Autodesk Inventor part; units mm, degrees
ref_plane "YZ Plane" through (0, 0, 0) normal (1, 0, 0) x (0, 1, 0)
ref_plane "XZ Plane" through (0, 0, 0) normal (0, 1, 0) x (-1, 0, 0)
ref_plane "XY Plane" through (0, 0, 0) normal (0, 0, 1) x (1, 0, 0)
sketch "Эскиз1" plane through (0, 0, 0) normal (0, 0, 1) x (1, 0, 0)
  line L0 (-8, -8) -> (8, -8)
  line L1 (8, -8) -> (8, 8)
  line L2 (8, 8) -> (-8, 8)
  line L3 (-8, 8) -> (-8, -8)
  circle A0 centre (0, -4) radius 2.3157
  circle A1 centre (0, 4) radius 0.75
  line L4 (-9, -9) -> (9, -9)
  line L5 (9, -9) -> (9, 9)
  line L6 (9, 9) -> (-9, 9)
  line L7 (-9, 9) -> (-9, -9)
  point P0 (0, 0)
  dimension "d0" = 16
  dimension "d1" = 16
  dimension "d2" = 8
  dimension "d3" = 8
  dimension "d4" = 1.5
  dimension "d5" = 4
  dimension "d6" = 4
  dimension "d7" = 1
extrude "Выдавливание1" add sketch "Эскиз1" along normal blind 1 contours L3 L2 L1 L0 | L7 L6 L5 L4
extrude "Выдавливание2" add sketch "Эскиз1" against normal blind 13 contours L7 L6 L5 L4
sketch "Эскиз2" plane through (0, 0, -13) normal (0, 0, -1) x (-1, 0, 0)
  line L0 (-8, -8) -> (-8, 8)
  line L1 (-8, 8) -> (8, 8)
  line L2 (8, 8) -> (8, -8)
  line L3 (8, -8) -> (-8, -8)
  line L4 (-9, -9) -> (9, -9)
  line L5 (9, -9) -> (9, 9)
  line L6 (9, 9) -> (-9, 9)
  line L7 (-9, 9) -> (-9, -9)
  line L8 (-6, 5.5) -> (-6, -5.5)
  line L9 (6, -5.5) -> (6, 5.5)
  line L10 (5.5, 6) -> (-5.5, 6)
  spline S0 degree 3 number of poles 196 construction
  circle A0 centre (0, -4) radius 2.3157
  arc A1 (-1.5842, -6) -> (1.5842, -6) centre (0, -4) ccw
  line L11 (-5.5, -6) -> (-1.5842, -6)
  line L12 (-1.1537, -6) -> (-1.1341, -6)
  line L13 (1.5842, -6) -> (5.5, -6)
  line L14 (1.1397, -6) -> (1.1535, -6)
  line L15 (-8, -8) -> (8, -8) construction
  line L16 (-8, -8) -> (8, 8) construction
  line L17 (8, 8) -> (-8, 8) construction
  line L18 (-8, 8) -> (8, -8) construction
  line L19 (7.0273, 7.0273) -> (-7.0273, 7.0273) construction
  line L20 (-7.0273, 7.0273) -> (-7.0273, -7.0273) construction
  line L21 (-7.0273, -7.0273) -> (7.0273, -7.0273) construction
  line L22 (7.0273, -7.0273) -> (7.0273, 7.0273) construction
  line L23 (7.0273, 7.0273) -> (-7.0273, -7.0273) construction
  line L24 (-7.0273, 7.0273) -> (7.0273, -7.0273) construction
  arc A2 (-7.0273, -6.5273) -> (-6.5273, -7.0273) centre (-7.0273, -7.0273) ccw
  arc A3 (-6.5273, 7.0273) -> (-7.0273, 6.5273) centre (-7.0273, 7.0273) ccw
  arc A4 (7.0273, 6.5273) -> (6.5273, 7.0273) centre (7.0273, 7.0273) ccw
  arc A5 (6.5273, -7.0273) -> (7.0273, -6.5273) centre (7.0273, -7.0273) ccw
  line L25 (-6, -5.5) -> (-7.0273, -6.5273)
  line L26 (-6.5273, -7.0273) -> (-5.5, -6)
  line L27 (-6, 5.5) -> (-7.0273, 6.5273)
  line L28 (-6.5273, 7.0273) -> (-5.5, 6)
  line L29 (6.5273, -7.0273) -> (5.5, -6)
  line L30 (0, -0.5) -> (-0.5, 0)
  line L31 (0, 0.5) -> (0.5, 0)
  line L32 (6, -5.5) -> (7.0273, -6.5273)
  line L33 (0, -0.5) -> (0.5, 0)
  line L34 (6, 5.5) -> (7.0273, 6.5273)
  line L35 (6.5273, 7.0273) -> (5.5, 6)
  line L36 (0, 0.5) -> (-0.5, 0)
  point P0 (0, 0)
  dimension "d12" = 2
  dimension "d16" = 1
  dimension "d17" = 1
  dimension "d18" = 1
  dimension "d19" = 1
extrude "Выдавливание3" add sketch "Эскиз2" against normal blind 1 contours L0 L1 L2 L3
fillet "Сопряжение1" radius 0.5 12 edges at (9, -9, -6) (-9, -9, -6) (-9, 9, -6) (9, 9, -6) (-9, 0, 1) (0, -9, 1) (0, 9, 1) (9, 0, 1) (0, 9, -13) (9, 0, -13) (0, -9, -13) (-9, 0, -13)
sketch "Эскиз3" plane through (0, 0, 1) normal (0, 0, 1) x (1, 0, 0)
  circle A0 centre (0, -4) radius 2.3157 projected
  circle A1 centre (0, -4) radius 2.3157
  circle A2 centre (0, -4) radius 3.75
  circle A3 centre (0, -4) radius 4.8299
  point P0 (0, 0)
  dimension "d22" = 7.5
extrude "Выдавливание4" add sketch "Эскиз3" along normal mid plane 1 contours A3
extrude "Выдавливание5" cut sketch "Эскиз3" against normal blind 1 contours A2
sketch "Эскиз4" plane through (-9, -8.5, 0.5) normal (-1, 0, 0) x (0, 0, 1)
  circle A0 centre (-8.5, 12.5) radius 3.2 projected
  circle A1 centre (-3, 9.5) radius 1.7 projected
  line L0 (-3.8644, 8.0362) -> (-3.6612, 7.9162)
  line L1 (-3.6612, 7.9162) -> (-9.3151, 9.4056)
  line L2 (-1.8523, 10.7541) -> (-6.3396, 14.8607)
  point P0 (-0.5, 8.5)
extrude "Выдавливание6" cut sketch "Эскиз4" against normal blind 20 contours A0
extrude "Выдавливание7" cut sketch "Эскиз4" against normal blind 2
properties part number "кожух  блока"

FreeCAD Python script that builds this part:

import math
import FreeCAD as App
import Part
import Sketcher
from FreeCAD import Vector
Q = App.Units.Quantity


def edges_at(feature, points):
    """Names of the edges that pass closest to the given points."""
    edges = feature.Shape.Edges
    near = lambda p: min(range(len(edges)), key=lambda i: edges[i].distToShape(Part.Vertex(*p))[0])
    return sorted({f"Edge{near(p) + 1}" for p in points})

doc = App.newDocument("Part")
params = doc.addObject("Spreadsheet::Sheet", "Params")
for row, (alias, value) in enumerate([
    ("sketch1_diameter", "1.5 mm"),
    ("sketch1_width", "18 mm"),
    ("pad1_length", "1 mm"),
    ("sketch2_width", "16 mm"),
    ("pad2_length", "13 mm"),
    ("sketch3_radius", "0.5 mm"),
    ("sketch3_width", "16 mm"),
    ("pad3_length", "1 mm"),
    ("fillet_radius", "0.5 mm"),
    ("sketch4_diameter", "7.5 mm"),
    ("pad4_length", "1 mm"),
    ("sketch5_diameter", "7.5 mm"),
    ("pocket1_length", "1 mm"),
    ("sketch6_diameter", "6.4 mm"),
    ("pocket2_length", "20 mm"),
    ("sketch7_radius", "3.2 mm"),
    ("sketch7_radius2", "1.7 mm"),
    ("pocket3_length", "2 mm"),
], start=1):
    params.set(f"A{row}", alias)
    params.set(f"B{row}", "=" + value)
    params.setAlias(f"B{row}", alias)

body = doc.addObject("PartDesign::Body", "Body")

# Sketch on XY plane
sketch1 = doc.addObject("Sketcher::SketchObject", "Sketch")
body.addObject(sketch1)
sketch1.AttachmentSupport = (doc.XY_Plane, [""])
sketch1.MapMode = "FlatFace"
sketch1.addGeometry([
    Part.LineSegment(Vector(-9, 9, 0), Vector(-9, -9, 0)),  # 0
    Part.LineSegment(Vector(-9, -9, 0), Vector(9, -9, 0)),  # 1
    Part.LineSegment(Vector(9, -9, 0), Vector(9, 9, 0)),  # 2
    Part.LineSegment(Vector(9, 9, 0), Vector(-9, 9, 0)),  # 3
    Part.Circle(Vector(0, -4, 0), Vector(0, 0, 1), 2.3),  # 4
    Part.Circle(Vector(0, 4, 0), Vector(0, 0, 1), 0.8),  # 5
], False)
sketch1.addConstraint([
    Sketcher.Constraint("Coincident", 0, 2, 1, 1),
    Sketcher.Constraint("Coincident", 1, 2, 2, 1),
    Sketcher.Constraint("Coincident", 2, 2, 3, 1),
    Sketcher.Constraint("Coincident", 3, 2, 0, 1),
    Sketcher.Constraint("Vertical", 0),
    Sketcher.Constraint("Horizontal", 1),
    Sketcher.Constraint("Vertical", 2),
    Sketcher.Constraint("Horizontal", 3),
    Sketcher.Constraint("Symmetric", 4, 3, 5, 3, -1, 1),
    Sketcher.Constraint("Symmetric", 0, 2, 2, 2, -1, 1),
    Sketcher.Constraint("PointOnObject", 4, 3, -2),
    Sketcher.Constraint("Equal", 3, 0),
    Sketcher.Constraint("Diameter", 5, Q("1.5 mm")),
    Sketcher.Constraint("DistanceY", 4, 3, -1, 1, Q("4 mm")),
    Sketcher.Constraint("DistanceX", 1, 1, 1, 2, Q("18 mm")),
    Sketcher.Constraint("Diameter", 4, Q("4.6314 mm")),
])
sketch1.setExpression("Constraints[12]", "Params.sketch1_diameter")
sketch1.setExpression("Constraints[14]", "Params.sketch1_width")
pad1 = doc.addObject("PartDesign::Pad", "Pad")
body.addObject(pad1)
pad1.Profile = sketch1
pad1.setExpression("Length", "Params.pad1_length")

# Sketch on XY plane
sketch2 = doc.addObject("Sketcher::SketchObject", "Sketch001")
body.addObject(sketch2)
sketch2.AttachmentSupport = (doc.XY_Plane, [""])
sketch2.MapMode = "FlatFace"
sketch2.addGeometry([
    Part.LineSegment(Vector(-9, 9, 0), Vector(-9, -9, 0)),  # 0
    Part.LineSegment(Vector(-9, -9, 0), Vector(9, -9, 0)),  # 1
    Part.LineSegment(Vector(9, -9, 0), Vector(9, 9, 0)),  # 2
    Part.LineSegment(Vector(9, 9, 0), Vector(-9, 9, 0)),  # 3
    Part.LineSegment(Vector(8, -8, 0), Vector(-8, -8, 0)),  # 4
    Part.LineSegment(Vector(-8, -8, 0), Vector(-8, 8, 0)),  # 5
    Part.LineSegment(Vector(-8, 8, 0), Vector(8, 8, 0)),  # 6
    Part.LineSegment(Vector(8, 8, 0), Vector(8, -8, 0)),  # 7
], False)
sketch2.addConstraint([
    Sketcher.Constraint("Coincident", 0, 2, 1, 1),
    Sketcher.Constraint("Coincident", 1, 2, 2, 1),
    Sketcher.Constraint("Coincident", 2, 2, 3, 1),
    Sketcher.Constraint("Coincident", 3, 2, 0, 1),
    Sketcher.Constraint("Coincident", 4, 2, 5, 1),
    Sketcher.Constraint("Coincident", 5, 2, 6, 1),
    Sketcher.Constraint("Coincident", 6, 2, 7, 1),
    Sketcher.Constraint("Coincident", 7, 2, 4, 1),
    Sketcher.Constraint("Vertical", 0),
    Sketcher.Constraint("Horizontal", 1),
    Sketcher.Constraint("Vertical", 2),
    Sketcher.Constraint("Horizontal", 3),
    Sketcher.Constraint("Horizontal", 4),
    Sketcher.Constraint("Vertical", 5),
    Sketcher.Constraint("Horizontal", 6),
    Sketcher.Constraint("Vertical", 7),
    Sketcher.Constraint("Symmetric", 0, 2, 2, 2, -1, 1),
    Sketcher.Constraint("Symmetric", 4, 2, 6, 2, -1, 1),
    Sketcher.Constraint("Equal", 3, 0),
    Sketcher.Constraint("Equal", 6, 5),
    Sketcher.Constraint("DistanceX", 4, 2, 4, 1, Q("16 mm")),
    Sketcher.Constraint("DistanceX", 0, 2, 4, 2, Q("1 mm")),
])
sketch2.setExpression("Constraints[20]", "Params.sketch2_width")
pad2 = doc.addObject("PartDesign::Pad", "Pad001")
body.addObject(pad2)
pad2.Profile = sketch2
pad2.setExpression("Length", "Params.pad2_length")
pad2.Reversed = True

# Sketch on XY plane
sketch3 = doc.addObject("Sketcher::SketchObject", "Sketch002")
body.addObject(sketch3)
sketch3.AttachmentSupport = (doc.XY_Plane, [""])
sketch3.MapMode = "FlatFace"
sketch3.AttachmentOffset = App.Placement(Vector(0, 0, -13), App.Rotation())
sketch3.addGeometry([
    Part.LineSegment(Vector(8, 8, 0), Vector(8, -8, 0)),  # 0
    Part.LineSegment(Vector(8, -8, 0), Vector(-8, -8, 0)),  # 1
    Part.LineSegment(Vector(-8, -8, 0), Vector(-8, 8, 0)),  # 2
    Part.LineSegment(Vector(-8, 8, 0), Vector(8, 8, 0)),  # 3
    Part.LineSegment(Vector(6, -5.5, 0), Vector(6, 5.5, 0)),  # 4
    Part.LineSegment(Vector(6, 5.5, 0), Vector(7, 6.5, 0)),  # 5
    Part.ArcOfCircle(Part.Circle(Vector(7, 7, 0), Vector(0, 0, 1), 0.5), math.radians(-90), math.radians(180)),  # 6
    Part.LineSegment(Vector(6.5, 7, 0), Vector(5.5, 6, 0)),  # 7
    Part.LineSegment(Vector(5.5, 6, 0), Vector(-5.5, 6, 0)),  # 8
    Part.LineSegment(Vector(-5.5, 6, 0), Vector(-6.5, 7, 0)),  # 9
    Part.ArcOfCircle(Part.Circle(Vector(-7, 7, 0), Vector(0, 0, 1), 0.5), math.radians(0), math.radians(270)),  # 10
    Part.LineSegment(Vector(-7, 6.5, 0), Vector(-6, 5.5, 0)),  # 11
    Part.LineSegment(Vector(-6, 5.5, 0), Vector(-6, -5.5, 0)),  # 12
    Part.LineSegment(Vector(-6, -5.5, 0), Vector(-7, -6.5, 0)),  # 13
    Part.ArcOfCircle(Part.Circle(Vector(-7, -7, 0), Vector(0, 0, 1), 0.5), math.radians(90), math.radians(360)),  # 14
    Part.LineSegment(Vector(-6.5, -7, 0), Vector(-5.5, -6, 0)),  # 15
    Part.LineSegment(Vector(-5.5, -6, 0), Vector(-1.6, -6, 0)),  # 16
    Part.ArcOfCircle(Part.Circle(Vector(0, -4, 0), Vector(0, 0, 1), 2.6), math.radians(-128), math.radians(-52)),  # 17
    Part.LineSegment(Vector(1.6, -6, 0), Vector(5.5, -6, 0)),  # 18
    Part.LineSegment(Vector(5.5, -6, 0), Vector(6.5, -7, 0)),  # 19
    Part.ArcOfCircle(Part.Circle(Vector(7, -7, 0), Vector(0, 0, 1), 0.5), math.radians(180), math.radians(450)),  # 20
    Part.LineSegment(Vector(7, -6.5, 0), Vector(6, -5.5, 0)),  # 21
], False)
sketch3.addConstraint([
    Sketcher.Constraint("Coincident", 0, 2, 1, 1),
    Sketcher.Constraint("Coincident", 1, 2, 2, 1),
    Sketcher.Constraint("Coincident", 2, 2, 3, 1),
    Sketcher.Constraint("Coincident", 3, 2, 0, 1),
    Sketcher.Constraint("Coincident", 4, 2, 5, 1),
    Sketcher.Constraint("Coincident", 5, 2, 6, 1),
    Sketcher.Constraint("Coincident", 6, 2, 7, 1),
    Sketcher.Constraint("Coincident", 7, 2, 8, 1),
    Sketcher.Constraint("Coincident", 8, 2, 9, 1),
    Sketcher.Constraint("Coincident", 9, 2, 10, 1),
    Sketcher.Constraint("Coincident", 10, 2, 11, 1),
    Sketcher.Constraint("Coincident", 11, 2, 12, 1),
    Sketcher.Constraint("Coincident", 12, 2, 13, 1),
    Sketcher.Constraint("Coincident", 13, 2, 14, 1),
    Sketcher.Constraint("Coincident", 14, 2, 15, 1),
    Sketcher.Constraint("Coincident", 15, 2, 16, 1),
    Sketcher.Constraint("Coincident", 16, 2, 17, 1),
    Sketcher.Constraint("Coincident", 17, 2, 18, 1),
    Sketcher.Constraint("Coincident", 18, 2, 19, 1),
    Sketcher.Constraint("Coincident", 19, 2, 20, 1),
    Sketcher.Constraint("Coincident", 20, 2, 21, 1),
    Sketcher.Constraint("Coincident", 21, 2, 4, 1),
    Sketcher.Constraint("Vertical", 0),
    Sketcher.Constraint("Horizontal", 1),
    Sketcher.Constraint("Vertical", 2),
    Sketcher.Constraint("Horizontal", 3),
    Sketcher.Constraint("Vertical", 4),
    Sketcher.Constraint("Horizontal", 8),
    Sketcher.Constraint("Vertical", 12),
    Sketcher.Constraint("Horizontal", 16),
    Sketcher.Constraint("Horizontal", 18),
    Sketcher.Constraint("Equal", 6, 10),
    Sketcher.Constraint("Equal", 10, 14),
    Sketcher.Constraint("Equal", 14, 20),
    Sketcher.Constraint("Symmetric", 6, 3, 14, 3, -1, 1),
    Sketcher.Constraint("Symmetric", 10, 3, 20, 3, -1, 1),
    Sketcher.Constraint("Symmetric", 0, 2, 2, 2, -1, 1),
    Sketcher.Constraint("Symmetric", 4, 2, 12, 2, -1, 1),
    Sketcher.Constraint("Symmetric", 7, 2, 15, 2, -1, 1),
    Sketcher.Constraint("Symmetric", 8, 2, 18, 2, -1, 1),
    Sketcher.Constraint("Symmetric", 6, 3, 10, 3, -2),
    Sketcher.Constraint("PointOnObject", 17, 3, -2),
    Sketcher.Constraint("Parallel", 5, 7),
    Sketcher.Constraint("Perpendicular", 7, 9),
    Sketcher.Constraint("Parallel", 9, 11),
    Sketcher.Constraint("Perpendicular", 11, 13),
    Sketcher.Constraint("Parallel", 13, 15),
    Sketcher.Constraint("Perpendicular", 15, 19),
    Sketcher.Constraint("Parallel", 19, 21),
    Sketcher.Constraint("Horizontal", 10, 3, 6, 2),
    Sketcher.Constraint("Horizontal", 6, 2, 9, 2),
    Sketcher.Constraint("Horizontal", 4, 2, 11, 2),
    Sketcher.Constraint("Horizontal", 12, 2, 21, 2),
    Sketcher.Constraint("Vertical", 20, 3, 5, 2),
    Sketcher.Constraint("Vertical", 14, 3, 10, 2),
    Sketcher.Constraint("Equal", 3, 0),
    Sketcher.Constraint("Equal", 8, 4),
    Sketcher.Constraint("Equal", 5, 7),
    Sketcher.Constraint("Radius", 6, Q("0.5 mm")),
    Sketcher.Constraint("DistanceX", 4, 2, 3, 2, Q("2 mm")),
    Sketcher.Constraint("DistanceY", 16, 2, 17, 3, Q("2 mm")),
    Sketcher.Constraint("DistanceX", 1, 2, 1, 1, Q("16 mm")),
    Sketcher.Constraint("Radius", 17, Q("2.5514 mm")),
    Sketcher.Constraint("DistanceX", 14, 2, 16, 2, Q("4.943 mm")),
])
sketch3.setExpression("Constraints[58]", "Params.sketch3_radius")
sketch3.setExpression("Constraints[61]", "Params.sketch3_width")
pad3 = doc.addObject("PartDesign::Pad", "Pad002")
body.addObject(pad3)
pad3.Profile = sketch3
pad3.setExpression("Length", "Params.pad3_length")
doc.recompute()

fillet = doc.addObject("PartDesign::Fillet", "Fillet")
body.addObject(fillet)
fillet.Base = (pad3, edges_at(pad3, [
    (9, -9, -6),
    (-9, -9, -6),
    (-9, 9, -6),
    (9, 9, -6),
    (-9, 0, 1),
    (0, -9, 1),
    (0, 9, 1),
    (9, 0, 1),
    (0, 9, -13),
    (9, 0, -13),
    (0, -9, -13),
    (-9, 0, -13),
]))
fillet.setExpression("Radius", "Params.fillet_radius")

# Sketch on XY plane
sketch4 = doc.addObject("Sketcher::SketchObject", "Sketch003")
body.addObject(sketch4)
sketch4.AttachmentSupport = (doc.XY_Plane, [""])
sketch4.MapMode = "FlatFace"
sketch4.AttachmentOffset = App.Placement(Vector(0, 0, 1), App.Rotation())
sketch4.addGeometry([
    Part.Circle(Vector(0, -4, 0), Vector(0, 0, 1), 4.8),
    Part.Circle(Vector(0, -4, 0), Vector(0, 0, 1), 3.8),
], False)
sketch4.addConstraint([
    Sketcher.Constraint("Coincident", 1, 3, 0, 3),
    Sketcher.Constraint("PointOnObject", 0, 3, -2),
    Sketcher.Constraint("Diameter", 1, Q("7.5 mm")),
    Sketcher.Constraint("DistanceY", 0, 3, -1, 1, Q("4 mm")),
    Sketcher.Constraint("Diameter", 0, Q("9.6598 mm")),
])
sketch4.setExpression("Constraints[2]", "Params.sketch4_diameter")
pad4 = doc.addObject("PartDesign::Pad", "Pad003")
body.addObject(pad4)
pad4.Profile = sketch4
pad4.setExpression("Length", "Params.pad4_length")
pad4.Midplane = True

# Sketch on XY plane
sketch5 = doc.addObject("Sketcher::SketchObject", "Sketch004")
body.addObject(sketch5)
sketch5.AttachmentSupport = (doc.XY_Plane, [""])
sketch5.MapMode = "FlatFace"
sketch5.AttachmentOffset = App.Placement(Vector(0, 0, 1), App.Rotation())
sketch5.addGeometry([
    Part.Circle(Vector(0, -4, 0), Vector(0, 0, 1), 3.8),
    Part.Circle(Vector(0, -4, 0), Vector(0, 0, 1), 2.3),
], False)
sketch5.addConstraint([
    Sketcher.Constraint("Coincident", 1, 3, 0, 3),
    Sketcher.Constraint("PointOnObject", 0, 3, -2),
    Sketcher.Constraint("Diameter", 0, Q("7.5 mm")),
    Sketcher.Constraint("DistanceY", 0, 3, -1, 1, Q("4 mm")),
    Sketcher.Constraint("Diameter", 1, Q("4.6314 mm")),
])
sketch5.setExpression("Constraints[2]", "Params.sketch5_diameter")
pocket1 = doc.addObject("PartDesign::Pocket", "Pocket")
body.addObject(pocket1)
pocket1.Profile = sketch5
pocket1.setExpression("Length", "Params.pocket1_length")

# Sketch on YZ plane
sketch6 = doc.addObject("Sketcher::SketchObject", "Sketch005")
body.addObject(sketch6)
sketch6.AttachmentSupport = (doc.YZ_Plane, [""])
sketch6.MapMode = "FlatFace"
sketch6.AttachmentOffset = App.Placement(Vector(0, 0, -9), App.Rotation())
sketch6.addGeometry(Part.Circle(Vector(4, -8, 0), Vector(0, 0, 1), 3.2), False)
sketch6.addConstraint([
    Sketcher.Constraint("Diameter", 0, Q("6.4 mm")),
    Sketcher.Constraint("DistanceX", -1, 1, 0, 3, Q("4 mm")),
    Sketcher.Constraint("DistanceY", 0, 3, -1, 1, Q("8 mm")),
])
sketch6.setExpression("Constraints[0]", "Params.sketch6_diameter")
pocket2 = doc.addObject("PartDesign::Pocket", "Pocket001")
body.addObject(pocket2)
pocket2.Profile = sketch6
pocket2.setExpression("Length", "Params.pocket2_length")
pocket2.Reversed = True

# Sketch on YZ plane
sketch7 = doc.addObject("Sketcher::SketchObject", "Sketch006")
body.addObject(sketch7)
sketch7.AttachmentSupport = (doc.YZ_Plane, [""])
sketch7.MapMode = "FlatFace"
sketch7.AttachmentOffset = App.Placement(Vector(0, 0, -9), App.Rotation())
sketch7.addGeometry([
    Part.ArcOfCircle(Part.Circle(Vector(4, -8, 0), Vector(0, 0, 1), 3.2), math.radians(-165), math.radians(42)),  # 0
    Part.LineSegment(Vector(0.91, -8.82, 0), Vector(-0.58, -3.16, 0)),  # 1
    Part.LineSegment(Vector(-0.58, -3.16, 0), Vector(-0.46, -3.36, 0)),  # 2
    Part.ArcOfCircle(Part.Circle(Vector(1, -2.5, 0), Vector(0, 0, 1), 1.7), math.radians(42), math.radians(211)),  # 3
    Part.LineSegment(Vector(2.25, -1.35, 0), Vector(6.36, -5.84, 0)),  # 4
], False)
sketch7.addConstraint([
    Sketcher.Constraint("Tangent", 0, 1, 1, 1),
    Sketcher.Constraint("Coincident", 1, 2, 2, 1),
    Sketcher.Constraint("Tangent", 2, 2, 3, 2),
    Sketcher.Constraint("Tangent", 3, 1, 4, 1),
    Sketcher.Constraint("Tangent", 4, 2, 0, 2),
    Sketcher.Constraint("Radius", 0, Q("3.2 mm")),
    Sketcher.Constraint("Radius", 3, Q("1.7 mm")),
    Sketcher.Constraint("DistanceX", -1, 1, 0, 3, Q("4 mm")),
    Sketcher.Constraint("DistanceY", 0, 3, -1, 1, Q("8 mm")),
    Sketcher.Constraint("DistanceX", -1, 1, 3, 3, Q("1 mm")),
    Sketcher.Constraint("DistanceY", 3, 3, -1, 1, Q("2.5 mm")),
    Sketcher.Constraint("DistanceX", 1, 2, 2, 2, Q("0.12 mm")),
    Sketcher.Constraint("Distance", 2, Q("0.236 mm")),
])
sketch7.setExpression("Constraints[5]", "Params.sketch7_radius")
sketch7.setExpression("Constraints[6]", "Params.sketch7_radius2")
pocket3 = doc.addObject("PartDesign::Pocket", "Pocket002")
body.addObject(pocket3)
pocket3.Profile = sketch7
pocket3.setExpression("Length", "Params.pocket3_length")
pocket3.Reversed = True

doc.recompute()
